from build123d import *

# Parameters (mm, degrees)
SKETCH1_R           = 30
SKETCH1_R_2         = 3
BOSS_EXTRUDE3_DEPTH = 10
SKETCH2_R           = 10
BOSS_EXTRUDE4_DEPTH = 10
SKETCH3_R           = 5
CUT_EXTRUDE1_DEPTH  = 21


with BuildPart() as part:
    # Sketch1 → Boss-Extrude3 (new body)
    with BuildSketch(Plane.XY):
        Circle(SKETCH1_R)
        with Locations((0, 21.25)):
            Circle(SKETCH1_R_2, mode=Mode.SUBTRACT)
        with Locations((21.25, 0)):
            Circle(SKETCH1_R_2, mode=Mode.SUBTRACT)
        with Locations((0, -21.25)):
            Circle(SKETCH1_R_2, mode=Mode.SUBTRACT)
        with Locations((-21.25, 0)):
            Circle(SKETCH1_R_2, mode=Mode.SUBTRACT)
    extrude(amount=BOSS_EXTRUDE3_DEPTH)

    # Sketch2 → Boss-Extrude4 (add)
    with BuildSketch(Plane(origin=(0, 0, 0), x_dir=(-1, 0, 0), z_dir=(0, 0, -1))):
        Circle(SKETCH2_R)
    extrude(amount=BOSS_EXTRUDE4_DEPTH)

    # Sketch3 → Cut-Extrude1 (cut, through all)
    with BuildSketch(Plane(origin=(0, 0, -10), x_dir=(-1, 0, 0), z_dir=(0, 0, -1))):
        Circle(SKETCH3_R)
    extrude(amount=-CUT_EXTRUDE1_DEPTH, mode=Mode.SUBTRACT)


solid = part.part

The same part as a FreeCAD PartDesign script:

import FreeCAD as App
import Part
import Sketcher

V = App.Vector

doc = App.newDocument("Part")
body = doc.addObject("PartDesign::Body", "Body")

sketch1 = body.newObject("Sketcher::SketchObject", "Sketch")
sketch1.AttachmentSupport = (doc.getObject("XY_Plane"), [""])
sketch1.MapMode = "FlatFace"
sketch1.addGeometry([
    Part.Circle(V(0, 0, 0), V(0, 0, 1), 30),
    Part.Circle(V(0, -21.2, 0), V(0, 0, 1), 3),
    Part.Circle(V(-21.2, 0, 0), V(0, 0, 1), 3),
    Part.Circle(V(21.2, 0, 0), V(0, 0, 1), 3),
    Part.Circle(V(0, 21.2, 0), V(0, 0, 1), 3),
], False)
sketch1.addConstraint([
    Sketcher.Constraint("Coincident", 0, 3, -1, 1),
    Sketcher.Constraint("Equal", 1, 2),
    Sketcher.Constraint("Equal", 2, 3),
    Sketcher.Constraint("Equal", 3, 4),
    Sketcher.Constraint("Symmetric", 2, 3, 3, 3, -1, 1),
    Sketcher.Constraint("Symmetric", 1, 3, 4, 3, -1, 1),
    Sketcher.Constraint("PointOnObject", 1, 3, -2),
    Sketcher.Constraint("PointOnObject", 2, 3, -1),
    Sketcher.Constraint("Diameter", 0, 60.0),
    Sketcher.Constraint("Diameter", 1, 6.0),
    Sketcher.Constraint("DistanceX", 2, 3, 3, 3, 42.5),
    Sketcher.Constraint("DistanceY", 1, 3, 4, 3, 42.5),
])
pad1 = body.newObject("PartDesign::Pad", "Pad")
pad1.Profile = sketch1
pad1.Length = 10

sketch2 = body.newObject("Sketcher::SketchObject", "Sketch001")
sketch2.AttachmentSupport = (doc.getObject("XY_Plane"), [""])
sketch2.MapMode = "FlatFace"
sketch2.addGeometry(Part.Circle(V(0, 0, 0), V(0, 0, 1), 10), False)
sketch2.addConstraint([
    Sketcher.Constraint("Coincident", 0, 3, -1, 1),
    Sketcher.Constraint("Diameter", 0, 20.0),
])
pad2 = body.newObject("PartDesign::Pad", "Pad001")
pad2.Profile = sketch2
pad2.Length = 10
pad2.Reversed = True

sketch3 = body.newObject("Sketcher::SketchObject", "Sketch002")
sketch3.AttachmentSupport = (doc.getObject("XY_Plane"), [""])
sketch3.MapMode = "FlatFace"
sketch3.AttachmentOffset = App.Placement(V(0, 0, -10), App.Rotation())
sketch3.addGeometry(Part.Circle(V(0, 0, 0), V(0, 0, 1), 5), False)
sketch3.addConstraint([
    Sketcher.Constraint("Coincident", 0, 3, -1, 1),
    Sketcher.Constraint("Diameter", 0, 10.0),
])
pocket1 = body.newObject("PartDesign::Pocket", "Pocket")
pocket1.Profile = sketch3
pocket1.Type = "ThroughAll"
pocket1.Reversed = True

doc.recompute()
